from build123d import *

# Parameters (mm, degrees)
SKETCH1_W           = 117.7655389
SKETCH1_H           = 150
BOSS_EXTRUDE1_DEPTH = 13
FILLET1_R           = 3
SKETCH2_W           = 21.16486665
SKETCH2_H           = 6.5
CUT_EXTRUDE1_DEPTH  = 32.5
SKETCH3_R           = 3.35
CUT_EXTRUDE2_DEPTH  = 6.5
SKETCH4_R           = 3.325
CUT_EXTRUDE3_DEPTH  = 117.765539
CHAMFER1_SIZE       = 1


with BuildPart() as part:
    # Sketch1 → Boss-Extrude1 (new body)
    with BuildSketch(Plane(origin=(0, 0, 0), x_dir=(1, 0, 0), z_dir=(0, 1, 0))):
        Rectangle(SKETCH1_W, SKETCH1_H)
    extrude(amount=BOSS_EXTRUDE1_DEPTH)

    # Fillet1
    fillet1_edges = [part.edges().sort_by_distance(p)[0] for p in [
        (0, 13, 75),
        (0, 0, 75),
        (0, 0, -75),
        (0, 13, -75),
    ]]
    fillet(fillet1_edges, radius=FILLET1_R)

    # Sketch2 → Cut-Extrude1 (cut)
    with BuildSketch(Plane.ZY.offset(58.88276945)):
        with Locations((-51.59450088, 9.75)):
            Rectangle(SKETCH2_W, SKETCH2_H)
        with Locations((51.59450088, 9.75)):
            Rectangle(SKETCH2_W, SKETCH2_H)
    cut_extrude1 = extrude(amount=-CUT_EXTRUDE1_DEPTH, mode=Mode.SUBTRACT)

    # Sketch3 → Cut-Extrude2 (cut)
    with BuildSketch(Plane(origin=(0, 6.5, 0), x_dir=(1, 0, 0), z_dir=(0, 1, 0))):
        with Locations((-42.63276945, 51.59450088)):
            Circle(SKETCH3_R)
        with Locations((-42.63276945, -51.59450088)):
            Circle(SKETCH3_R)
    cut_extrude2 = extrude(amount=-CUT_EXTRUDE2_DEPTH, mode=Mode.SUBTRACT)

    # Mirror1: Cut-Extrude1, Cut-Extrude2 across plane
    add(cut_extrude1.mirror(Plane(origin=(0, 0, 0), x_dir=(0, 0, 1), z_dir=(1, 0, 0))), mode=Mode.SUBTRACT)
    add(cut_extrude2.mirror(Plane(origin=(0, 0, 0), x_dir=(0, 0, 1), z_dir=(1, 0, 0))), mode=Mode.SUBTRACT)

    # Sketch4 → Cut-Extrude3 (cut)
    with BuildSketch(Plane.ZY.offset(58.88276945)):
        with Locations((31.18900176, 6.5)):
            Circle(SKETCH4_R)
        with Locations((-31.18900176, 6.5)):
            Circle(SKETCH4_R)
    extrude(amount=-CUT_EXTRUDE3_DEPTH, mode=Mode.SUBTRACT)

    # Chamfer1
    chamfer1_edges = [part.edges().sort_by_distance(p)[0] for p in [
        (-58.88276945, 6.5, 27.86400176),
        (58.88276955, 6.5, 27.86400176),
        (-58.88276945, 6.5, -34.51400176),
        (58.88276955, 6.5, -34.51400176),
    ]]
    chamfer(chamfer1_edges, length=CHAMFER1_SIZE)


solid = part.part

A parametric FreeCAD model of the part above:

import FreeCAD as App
import Part
import Sketcher

V = App.Vector
Q = App.Units.Quantity


def edges_at(feature, points):
    """Names of the edges that pass closest to the given points."""
    edges = feature.Shape.Edges
    near = lambda p: min(range(len(edges)), key=lambda i: edges[i].distToShape(Part.Vertex(*p))[0])
    return sorted({f"Edge{near(p) + 1}" for p in points})

doc = App.newDocument("Part")
body = doc.addObject("PartDesign::Body", "Body")

# Sketch on XZ plane
sketch1 = body.newObject("Sketcher::SketchObject", "Sketch")
sketch1.AttachmentSupport = (doc.getObject("XZ_Plane"), [""])
sketch1.MapMode = "FlatFace"
sketch1.addGeometry(Part.LineSegment(V(-59, -75, 0), V(-59, 75, 0)), False)
sketch1.addGeometry(Part.LineSegment(V(-59, 75, 0), V(59, 75, 0)), False)
sketch1.addGeometry(Part.LineSegment(V(59, 75, 0), V(59, -75, 0)), False)
sketch1.addGeometry(Part.LineSegment(V(59, -75, 0), V(-59, -75, 0)), False)
sketch1.addConstraint(Sketcher.Constraint("Coincident", 0, 2, 1, 1))
sketch1.addConstraint(Sketcher.Constraint("Coincident", 1, 2, 2, 1))
sketch1.addConstraint(Sketcher.Constraint("Coincident", 2, 2, 3, 1))
sketch1.addConstraint(Sketcher.Constraint("Coincident", 3, 2, 0, 1))
sketch1.addConstraint(Sketcher.Constraint("Vertical", 0))
sketch1.addConstraint(Sketcher.Constraint("Horizontal", 1))
sketch1.addConstraint(Sketcher.Constraint("Vertical", 2))
sketch1.addConstraint(Sketcher.Constraint("Horizontal", 3))
sketch1.addConstraint(Sketcher.Constraint("Symmetric", 0, 2, 2, 2, -1, 1))
sketch1.addConstraint(Sketcher.Constraint("DistanceY", 0, 1, 0, 2, Q("150 mm")))
sketch1.addConstraint(Sketcher.Constraint("DistanceX", 1, 1, 1, 2, Q("117.765539 mm")))
pad1 = body.newObject("PartDesign::Pad", "Pad")
pad1.Profile = sketch1
pad1.Length = 13
pad1.Reversed = True
doc.recompute()

fillet = body.newObject("PartDesign::Fillet", "Fillet")
fillet.Base = (pad1, edges_at(pad1, [
    (0, 13, 75),
    (0, 0, 75),
    (0, 0, -75),
    (0, 13, -75),
]))
fillet.Radius = 3

# Sketch on YZ plane
sketch2 = body.newObject("Sketcher::SketchObject", "Sketch001")
sketch2.AttachmentSupport = (doc.getObject("YZ_Plane"), [""])
sketch2.MapMode = "FlatFace"
sketch2.AttachmentOffset = App.Placement(V(0, 0, -58.882769), App.Rotation())
sketch2.addGeometry(Part.LineSegment(V(13, -62, 0), V(6, -62, 0)), False)
sketch2.addGeometry(Part.LineSegment(V(6, -62, 0), V(6, -41, 0)), False)
sketch2.addGeometry(Part.LineSegment(V(6, -41, 0), V(13, -41, 0)), False)
sketch2.addGeometry(Part.LineSegment(V(13, -41, 0), V(13, -62, 0)), False)
sketch2.addGeometry(Part.LineSegment(V(13, 41, 0), V(6, 41, 0)), False)
sketch2.addGeometry(Part.LineSegment(V(6, 41, 0), V(6, 62, 0)), False)
sketch2.addGeometry(Part.LineSegment(V(6, 62, 0), V(13, 62, 0)), False)
sketch2.addGeometry(Part.LineSegment(V(13, 62, 0), V(13, 41, 0)), False)
sketch2.addConstraint(Sketcher.Constraint("Coincident", 0, 2, 1, 1))
sketch2.addConstraint(Sketcher.Constraint("Coincident", 1, 2, 2, 1))
sketch2.addConstraint(Sketcher.Constraint("Coincident", 2, 2, 3, 1))
sketch2.addConstraint(Sketcher.Constraint("Coincident", 3, 2, 0, 1))
sketch2.addConstraint(Sketcher.Constraint("Coincident", 4, 2, 5, 1))
sketch2.addConstraint(Sketcher.Constraint("Coincident", 5, 2, 6, 1))
sketch2.addConstraint(Sketcher.Constraint("Coincident", 6, 2, 7, 1))
sketch2.addConstraint(Sketcher.Constraint("Coincident", 7, 2, 4, 1))
sketch2.addConstraint(Sketcher.Constraint("Horizontal", 0))
sketch2.addConstraint(Sketcher.Constraint("Vertical", 1))
sketch2.addConstraint(Sketcher.Constraint("Horizontal", 2))
sketch2.addConstraint(Sketcher.Constraint("Vertical", 3))
sketch2.addConstraint(Sketcher.Constraint("Horizontal", 4))
sketch2.addConstraint(Sketcher.Constraint("Vertical", 5))
sketch2.addConstraint(Sketcher.Constraint("Horizontal", 6))
sketch2.addConstraint(Sketcher.Constraint("Vertical", 7))
sketch2.addConstraint(Sketcher.Constraint("Symmetric", 1, 2, 4, 2, -1))
sketch2.addConstraint(Sketcher.Constraint("Symmetric", 3, 2, 6, 2, -1))
sketch2.addConstraint(Sketcher.Constraint("DistanceX", 0, 2, 0, 1, Q("6.5 mm")))
sketch2.addConstraint(Sketcher.Constraint("DistanceX", -1, 1, 2, 2, Q("13 mm")))
sketch2.addConstraint(Sketcher.Constraint("DistanceY", 0, 2, 4, 2, Q("103.189002 mm")))
sketch2.addConstraint(Sketcher.Constraint("DistanceY", 1, 1, 1, 2, Q("21.164867 mm")))
pocket1 = body.newObject("PartDesign::Pocket", "Pocket")
pocket1.Profile = sketch2
pocket1.Length = 32.5
pocket1.Reversed = True

# Sketch on XZ plane
sketch3 = body.newObject("Sketcher::SketchObject", "Sketch002")
sketch3.AttachmentSupport = (doc.getObject("XZ_Plane"), [""])
sketch3.MapMode = "FlatFace"
sketch3.AttachmentOffset = App.Placement(V(0, 0, -6.5), App.Rotation())
sketch3.addGeometry(Part.Circle(V(-42.6, -51.6, 0), V(0, 0, 1), 3.4), False)
sketch3.addGeometry(Part.Circle(V(-42.6, 51.6, 0), V(0, 0, 1), 3.4), False)
sketch3.addConstraint(Sketcher.Constraint("Equal", 0, 1))
sketch3.addConstraint(Sketcher.Constraint("Symmetric", 0, 3, 1, 3, -1))
sketch3.addConstraint(Sketcher.Constraint("Diameter", 0, Q("6.7 mm")))
sketch3.addConstraint(Sketcher.Constraint("DistanceY", 0, 3, 1, 3, Q("103.189002 mm")))
sketch3.addConstraint(Sketcher.Constraint("DistanceX", 0, 3, -1, 1, Q("42.632769 mm")))
pocket2 = body.newObject("PartDesign::Pocket", "Pocket001")
pocket2.Profile = sketch3
pocket2.Length = 6.5
pocket2.Reversed = True
doc.recompute()

mirrored = body.newObject("PartDesign::Mirrored", "Mirrored")
mirrored.Originals = [pocket1, pocket2]
mirrored.MirrorPlane = (doc.getObject("YZ_Plane"), [""])
body.Tip = mirrored

# Sketch on YZ plane
sketch4 = body.newObject("Sketcher::SketchObject", "Sketch003")
sketch4.AttachmentSupport = (doc.getObject("YZ_Plane"), [""])
sketch4.MapMode = "FlatFace"
sketch4.AttachmentOffset = App.Placement(V(0, 0, -58.882769), App.Rotation())
sketch4.addGeometry(Part.Circle(V(6.5, 31.2, 0), V(0, 0, 1), 3.3), False)
sketch4.addGeometry(Part.Circle(V(6.5, -31.2, 0), V(0, 0, 1), 3.3), False)
sketch4.addConstraint(Sketcher.Constraint("Equal", 0, 1))
sketch4.addConstraint(Sketcher.Constraint("Symmetric", 0, 3, 1, 3, -1))
sketch4.addConstraint(Sketcher.Constraint("Diameter", 0, Q("6.65 mm")))
sketch4.addConstraint(Sketcher.Constraint("DistanceX", -1, 1, 0, 3, Q("6.5 mm")))
sketch4.addConstraint(Sketcher.Constraint("DistanceY", -1, 1, 0, 3, Q("31.189002 mm")))
pocket3 = body.newObject("PartDesign::Pocket", "Pocket002")
pocket3.Profile = sketch4
pocket3.Length = 117.765539
pocket3.Reversed = True
doc.recompute()

chamfer = body.newObject("PartDesign::Chamfer", "Chamfer")
chamfer.Base = (pocket3, edges_at(pocket3, [
    (-58.883, 6.5, 27.864),
    (58.883, 6.5, 27.864),
    (-58.883, 6.5, -34.514),
    (58.883, 6.5, -34.514),
]))
chamfer.Size = 1

doc.recompute()
